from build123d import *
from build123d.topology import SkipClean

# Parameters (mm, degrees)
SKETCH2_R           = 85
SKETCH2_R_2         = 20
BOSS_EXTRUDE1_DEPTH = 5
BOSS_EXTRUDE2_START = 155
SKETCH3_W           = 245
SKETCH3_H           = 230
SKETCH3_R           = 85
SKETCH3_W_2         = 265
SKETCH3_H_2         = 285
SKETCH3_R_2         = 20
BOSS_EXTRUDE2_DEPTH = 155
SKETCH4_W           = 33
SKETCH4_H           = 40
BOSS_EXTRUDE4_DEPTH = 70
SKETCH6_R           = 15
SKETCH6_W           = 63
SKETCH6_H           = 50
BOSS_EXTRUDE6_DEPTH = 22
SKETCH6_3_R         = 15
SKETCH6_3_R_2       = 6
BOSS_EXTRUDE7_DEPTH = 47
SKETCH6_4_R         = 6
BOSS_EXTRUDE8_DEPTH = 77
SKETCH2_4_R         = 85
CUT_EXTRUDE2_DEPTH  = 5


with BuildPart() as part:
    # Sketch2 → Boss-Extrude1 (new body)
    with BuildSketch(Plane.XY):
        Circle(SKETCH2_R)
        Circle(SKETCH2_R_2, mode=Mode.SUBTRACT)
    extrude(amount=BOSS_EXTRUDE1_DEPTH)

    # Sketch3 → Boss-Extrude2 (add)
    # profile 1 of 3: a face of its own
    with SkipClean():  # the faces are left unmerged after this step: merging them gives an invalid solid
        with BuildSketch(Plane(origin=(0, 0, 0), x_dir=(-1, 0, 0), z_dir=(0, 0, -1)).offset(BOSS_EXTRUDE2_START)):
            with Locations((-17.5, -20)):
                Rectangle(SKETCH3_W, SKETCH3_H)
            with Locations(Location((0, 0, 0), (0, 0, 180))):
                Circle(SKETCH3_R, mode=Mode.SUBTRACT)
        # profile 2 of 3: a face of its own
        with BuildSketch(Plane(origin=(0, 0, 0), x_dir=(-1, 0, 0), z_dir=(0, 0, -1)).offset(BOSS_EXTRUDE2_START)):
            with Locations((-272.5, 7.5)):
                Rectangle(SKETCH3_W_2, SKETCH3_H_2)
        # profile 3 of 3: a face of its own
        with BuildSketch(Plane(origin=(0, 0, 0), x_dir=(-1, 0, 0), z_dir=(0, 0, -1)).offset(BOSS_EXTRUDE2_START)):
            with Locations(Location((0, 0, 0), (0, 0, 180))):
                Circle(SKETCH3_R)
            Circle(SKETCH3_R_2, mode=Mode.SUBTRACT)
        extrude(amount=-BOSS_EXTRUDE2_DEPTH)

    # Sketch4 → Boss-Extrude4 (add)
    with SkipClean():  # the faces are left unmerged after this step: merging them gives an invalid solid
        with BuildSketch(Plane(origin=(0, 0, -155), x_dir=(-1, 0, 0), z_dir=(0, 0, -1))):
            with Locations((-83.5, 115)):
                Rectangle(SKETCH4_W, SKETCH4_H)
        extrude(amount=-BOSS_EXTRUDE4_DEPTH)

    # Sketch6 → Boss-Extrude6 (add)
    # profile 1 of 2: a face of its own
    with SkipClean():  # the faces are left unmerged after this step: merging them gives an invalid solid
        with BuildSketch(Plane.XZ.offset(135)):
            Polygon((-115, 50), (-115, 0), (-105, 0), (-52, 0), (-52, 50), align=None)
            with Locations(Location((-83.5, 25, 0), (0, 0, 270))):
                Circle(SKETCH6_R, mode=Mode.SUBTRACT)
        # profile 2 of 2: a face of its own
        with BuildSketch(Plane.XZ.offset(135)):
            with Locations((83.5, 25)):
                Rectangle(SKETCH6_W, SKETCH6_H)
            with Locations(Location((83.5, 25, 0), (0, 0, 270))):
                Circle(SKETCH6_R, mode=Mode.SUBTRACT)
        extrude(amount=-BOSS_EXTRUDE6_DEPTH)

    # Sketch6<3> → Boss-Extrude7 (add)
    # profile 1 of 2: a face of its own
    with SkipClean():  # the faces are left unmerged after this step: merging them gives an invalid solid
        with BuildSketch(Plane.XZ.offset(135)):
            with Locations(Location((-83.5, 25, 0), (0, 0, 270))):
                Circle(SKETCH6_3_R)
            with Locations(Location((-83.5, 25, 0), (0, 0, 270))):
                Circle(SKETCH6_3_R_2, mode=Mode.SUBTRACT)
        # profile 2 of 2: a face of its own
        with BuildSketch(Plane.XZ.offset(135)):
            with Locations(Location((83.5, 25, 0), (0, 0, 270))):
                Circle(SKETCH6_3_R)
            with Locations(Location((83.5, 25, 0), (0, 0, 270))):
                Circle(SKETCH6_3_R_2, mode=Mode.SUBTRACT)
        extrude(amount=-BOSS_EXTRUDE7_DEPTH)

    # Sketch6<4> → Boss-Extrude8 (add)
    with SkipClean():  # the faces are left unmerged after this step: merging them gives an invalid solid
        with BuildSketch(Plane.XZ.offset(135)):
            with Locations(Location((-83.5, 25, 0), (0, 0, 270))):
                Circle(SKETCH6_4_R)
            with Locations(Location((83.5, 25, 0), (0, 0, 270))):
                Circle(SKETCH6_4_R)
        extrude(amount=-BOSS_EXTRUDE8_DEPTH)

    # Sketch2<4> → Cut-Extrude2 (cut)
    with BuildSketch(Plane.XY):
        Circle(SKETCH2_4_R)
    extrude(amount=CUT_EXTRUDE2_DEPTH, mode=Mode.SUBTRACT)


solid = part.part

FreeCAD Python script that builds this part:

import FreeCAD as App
import Part
import Sketcher
from FreeCAD import Vector


def add_polygon(sketch, points):
    """Adds a closed chain of lines whose ends are joined by coincident constraints."""
    first, n = sketch.GeometryCount, len(points)
    for a, b in zip(points, points[1:] + points[:1]):
        sketch.addGeometry(Part.LineSegment(App.Vector(*a, 0), App.Vector(*b, 0)), False)
    for i in range(n):
        sketch.addConstraint(Sketcher.Constraint("Coincident", first + i, 2, first + (i + 1) % n, 1))

doc = App.newDocument("Part")
body = doc.addObject("PartDesign::Body", "Body")

sketch1 = doc.addObject("Sketcher::SketchObject", "Sketch")
body.addObject(sketch1)
sketch1.AttachmentSupport = (doc.XY_Plane, [""])
sketch1.MapMode = "FlatFace"
sketch1.addGeometry(Part.Circle(Vector(0, 0, 0), Vector(0, 0, 1), 85), False)
sketch1.addGeometry(Part.Circle(Vector(0, 0, 0), Vector(0, 0, 1), 20), False)
sketch1.addConstraint(Sketcher.Constraint("Coincident", 0, 3, -1, 1))
sketch1.addConstraint(Sketcher.Constraint("Coincident", 1, 3, -1, 1))
sketch1.addConstraint(Sketcher.Constraint("Diameter", 0, 170.0))
sketch1.addConstraint(Sketcher.Constraint("Diameter", 1, 40.0))
pad1 = doc.addObject("PartDesign::Pad", "Pad")
body.addObject(pad1)
pad1.Profile = sketch1
pad1.Length = 5

sketch2 = doc.addObject("Sketcher::SketchObject", "Sketch001")
body.addObject(sketch2)
sketch2.AttachmentSupport = (doc.XY_Plane, [""])
sketch2.MapMode = "FlatFace"
sketch2.AttachmentOffset = App.Placement(Vector(0, 0, -155), App.Rotation())
add_polygon(sketch2, [(-105, -135), (-105, 95), (140, 95), (140, 150), (405, 150), (405, -135)])
sketch2.addGeometry(Part.Circle(Vector(0, 0, 0), Vector(0, 0, 1), 20), False)
sketch2.addConstraint(Sketcher.Constraint("Vertical", 0))
sketch2.addConstraint(Sketcher.Constraint("Horizontal", 1))
sketch2.addConstraint(Sketcher.Constraint("Vertical", 2))
sketch2.addConstraint(Sketcher.Constraint("Horizontal", 3))
sketch2.addConstraint(Sketcher.Constraint("Vertical", 4))
sketch2.addConstraint(Sketcher.Constraint("Horizontal", 5))
sketch2.addConstraint(Sketcher.Constraint("Coincident", 6, 3, -1, 1))
sketch2.addConstraint(Sketcher.Constraint("Diameter", 6, 40.0))
sketch2.addConstraint(Sketcher.Constraint("DistanceX", 1, 1, 1, 2, 245.0))
sketch2.addConstraint(Sketcher.Constraint("DistanceX", 3, 1, 3, 2, 265.0))
sketch2.addConstraint(Sketcher.Constraint("DistanceY", 0, 1, 0, 2, 230.0))
sketch2.addConstraint(Sketcher.Constraint("DistanceY", 2, 1, 2, 2, 55.0))
sketch2.addConstraint(Sketcher.Constraint("DistanceX", 0, 2, -1, 1, 105.0))
sketch2.addConstraint(Sketcher.Constraint("DistanceY", -1, 1, 0, 2, 95.0))
pad2 = doc.addObject("PartDesign::Pad", "Pad001")
body.addObject(pad2)
pad2.Profile = sketch2
pad2.Length = 155

sketch3 = doc.addObject("Sketcher::SketchObject", "Sketch002")
body.addObject(sketch3)
sketch3.AttachmentSupport = (doc.XY_Plane, [""])
sketch3.MapMode = "FlatFace"
sketch3.AttachmentOffset = App.Placement(Vector(0, 0, -155), App.Rotation())
add_polygon(sketch3, [(100, 135), (100, 95), (67, 95), (67, 135)])
sketch3.addConstraint(Sketcher.Constraint("Vertical", 0))
sketch3.addConstraint(Sketcher.Constraint("Horizontal", 1))
sketch3.addConstraint(Sketcher.Constraint("Vertical", 2))
sketch3.addConstraint(Sketcher.Constraint("Horizontal", 3))
sketch3.addConstraint(Sketcher.Constraint("DistanceX", 1, 2, 1, 1, 33.0))
sketch3.addConstraint(Sketcher.Constraint("DistanceY", 0, 2, 0, 1, 40.0))
sketch3.addConstraint(Sketcher.Constraint("DistanceX", -1, 1, 0, 2, 100.0))
sketch3.addConstraint(Sketcher.Constraint("DistanceY", -1, 1, 0, 2, 95.0))
pad3 = doc.addObject("PartDesign::Pad", "Pad002")
body.addObject(pad3)
pad3.Profile = sketch3
pad3.Length = 70

sketch4 = doc.addObject("Sketcher::SketchObject", "Sketch003")
body.addObject(sketch4)
sketch4.AttachmentSupport = (doc.XZ_Plane, [""])
sketch4.MapMode = "FlatFace"
sketch4.AttachmentOffset = App.Placement(Vector(0, 0, 135), App.Rotation())
add_polygon(sketch4, [(-115, 50), (-115, 0), (-52, 0), (-52, 50)])
sketch4.addGeometry(Part.Circle(Vector(-84, 25, 0), Vector(0, 0, 1), 15), False)
add_polygon(sketch4, [(52, 50), (52, 0), (115, 0), (115, 50)])
sketch4.addGeometry(Part.Circle(Vector(84, 25, 0), Vector(0, 0, 1), 15), False)
sketch4.addConstraint(Sketcher.Constraint("Vertical", 0))
sketch4.addConstraint(Sketcher.Constraint("Horizontal", 1))
sketch4.addConstraint(Sketcher.Constraint("Vertical", 2))
sketch4.addConstraint(Sketcher.Constraint("Horizontal", 3))
sketch4.addConstraint(Sketcher.Constraint("Vertical", 5))
sketch4.addConstraint(Sketcher.Constraint("Horizontal", 6))
sketch4.addConstraint(Sketcher.Constraint("Vertical", 7))
sketch4.addConstraint(Sketcher.Constraint("Horizontal", 8))
sketch4.addConstraint(Sketcher.Constraint("Equal", 4, 9))
sketch4.addConstraint(Sketcher.Constraint("Symmetric", 1, 2, 5, 2, -1, 1))
sketch4.addConstraint(Sketcher.Constraint("Symmetric", 4, 3, 9, 3, -2))
sketch4.addConstraint(Sketcher.Constraint("Symmetric", 0, 2, 6, 2, -2))
sketch4.addConstraint(Sketcher.Constraint("Horizontal", 3, 2, 7, 2))
sketch4.addConstraint(Sketcher.Constraint("Diameter", 4, 30.0))
sketch4.addConstraint(Sketcher.Constraint("DistanceX", 1, 1, 1, 2, 63.0))
sketch4.addConstraint(Sketcher.Constraint("DistanceY", 0, 2, 0, 1, 50.0))
sketch4.addConstraint(Sketcher.Constraint("DistanceY", -1, 1, 4, 3, 25.0))
sketch4.addConstraint(Sketcher.Constraint("DistanceX", 0, 2, -1, 1, 115.0))
sketch4.addConstraint(Sketcher.Constraint("DistanceX", 4, 3, 9, 3, 167.0))
pad4 = doc.addObject("PartDesign::Pad", "Pad003")
body.addObject(pad4)
pad4.Profile = sketch4
pad4.Length = 22
pad4.Reversed = True

sketch5 = doc.addObject("Sketcher::SketchObject", "Sketch004")
body.addObject(sketch5)
sketch5.AttachmentSupport = (doc.XZ_Plane, [""])
sketch5.MapMode = "FlatFace"
sketch5.AttachmentOffset = App.Placement(Vector(0, 0, 135), App.Rotation())
sketch5.addGeometry(Part.Circle(Vector(-84, 25, 0), Vector(0, 0, 1), 15), False)
sketch5.addGeometry(Part.Circle(Vector(-84, 25, 0), Vector(0, 0, 1), 6), False)
sketch5.addGeometry(Part.Circle(Vector(84, 25, 0), Vector(0, 0, 1), 15), False)
sketch5.addGeometry(Part.Circle(Vector(84, 25, 0), Vector(0, 0, 1), 6), False)
sketch5.addConstraint(Sketcher.Constraint("Coincident", 1, 3, 0, 3))
sketch5.addConstraint(Sketcher.Constraint("Coincident", 3, 3, 2, 3))
sketch5.addConstraint(Sketcher.Constraint("Equal", 0, 2))
sketch5.addConstraint(Sketcher.Constraint("Equal", 1, 3))
sketch5.addConstraint(Sketcher.Constraint("Symmetric", 0, 3, 2, 3, -2))
sketch5.addConstraint(Sketcher.Constraint("Diameter", 0, 30.0))
sketch5.addConstraint(Sketcher.Constraint("Diameter", 1, 12.0))
sketch5.addConstraint(Sketcher.Constraint("DistanceY", -1, 1, 0, 3, 25.0))
sketch5.addConstraint(Sketcher.Constraint("DistanceX", 0, 3, 2, 3, 167.0))
pad5 = doc.addObject("PartDesign::Pad", "Pad004")
body.addObject(pad5)
pad5.Profile = sketch5
pad5.Length = 47
pad5.Reversed = True

sketch6 = doc.addObject("Sketcher::SketchObject", "Sketch005")
body.addObject(sketch6)
sketch6.AttachmentSupport = (doc.XZ_Plane, [""])
sketch6.MapMode = "FlatFace"
sketch6.AttachmentOffset = App.Placement(Vector(0, 0, 135), App.Rotation())
sketch6.addGeometry(Part.Circle(Vector(-84, 25, 0), Vector(0, 0, 1), 6), False)
sketch6.addGeometry(Part.Circle(Vector(84, 25, 0), Vector(0, 0, 1), 6), False)
sketch6.addConstraint(Sketcher.Constraint("Equal", 0, 1))
sketch6.addConstraint(Sketcher.Constraint("Symmetric", 0, 3, 1, 3, -2))
sketch6.addConstraint(Sketcher.Constraint("Diameter", 0, 12.0))
sketch6.addConstraint(Sketcher.Constraint("DistanceY", -1, 1, 0, 3, 25.0))
sketch6.addConstraint(Sketcher.Constraint("DistanceX", 0, 3, 1, 3, 167.0))
pad6 = doc.addObject("PartDesign::Pad", "Pad005")
body.addObject(pad6)
pad6.Profile = sketch6
pad6.Length = 77
pad6.Reversed = True

sketch7 = doc.addObject("Sketcher::SketchObject", "Sketch006")
body.addObject(sketch7)
sketch7.AttachmentSupport = (doc.XY_Plane, [""])
sketch7.MapMode = "FlatFace"
sketch7.addGeometry(Part.Circle(Vector(0, 0, 0), Vector(0, 0, 1), 85), False)
sketch7.addConstraint(Sketcher.Constraint("Coincident", 0, 3, -1, 1))
sketch7.addConstraint(Sketcher.Constraint("Diameter", 0, 170.0))
pocket1 = doc.addObject("PartDesign::Pocket", "Pocket")
body.addObject(pocket1)
pocket1.Profile = sketch7
pocket1.Length = 5
pocket1.Reversed = True

doc.recompute()
